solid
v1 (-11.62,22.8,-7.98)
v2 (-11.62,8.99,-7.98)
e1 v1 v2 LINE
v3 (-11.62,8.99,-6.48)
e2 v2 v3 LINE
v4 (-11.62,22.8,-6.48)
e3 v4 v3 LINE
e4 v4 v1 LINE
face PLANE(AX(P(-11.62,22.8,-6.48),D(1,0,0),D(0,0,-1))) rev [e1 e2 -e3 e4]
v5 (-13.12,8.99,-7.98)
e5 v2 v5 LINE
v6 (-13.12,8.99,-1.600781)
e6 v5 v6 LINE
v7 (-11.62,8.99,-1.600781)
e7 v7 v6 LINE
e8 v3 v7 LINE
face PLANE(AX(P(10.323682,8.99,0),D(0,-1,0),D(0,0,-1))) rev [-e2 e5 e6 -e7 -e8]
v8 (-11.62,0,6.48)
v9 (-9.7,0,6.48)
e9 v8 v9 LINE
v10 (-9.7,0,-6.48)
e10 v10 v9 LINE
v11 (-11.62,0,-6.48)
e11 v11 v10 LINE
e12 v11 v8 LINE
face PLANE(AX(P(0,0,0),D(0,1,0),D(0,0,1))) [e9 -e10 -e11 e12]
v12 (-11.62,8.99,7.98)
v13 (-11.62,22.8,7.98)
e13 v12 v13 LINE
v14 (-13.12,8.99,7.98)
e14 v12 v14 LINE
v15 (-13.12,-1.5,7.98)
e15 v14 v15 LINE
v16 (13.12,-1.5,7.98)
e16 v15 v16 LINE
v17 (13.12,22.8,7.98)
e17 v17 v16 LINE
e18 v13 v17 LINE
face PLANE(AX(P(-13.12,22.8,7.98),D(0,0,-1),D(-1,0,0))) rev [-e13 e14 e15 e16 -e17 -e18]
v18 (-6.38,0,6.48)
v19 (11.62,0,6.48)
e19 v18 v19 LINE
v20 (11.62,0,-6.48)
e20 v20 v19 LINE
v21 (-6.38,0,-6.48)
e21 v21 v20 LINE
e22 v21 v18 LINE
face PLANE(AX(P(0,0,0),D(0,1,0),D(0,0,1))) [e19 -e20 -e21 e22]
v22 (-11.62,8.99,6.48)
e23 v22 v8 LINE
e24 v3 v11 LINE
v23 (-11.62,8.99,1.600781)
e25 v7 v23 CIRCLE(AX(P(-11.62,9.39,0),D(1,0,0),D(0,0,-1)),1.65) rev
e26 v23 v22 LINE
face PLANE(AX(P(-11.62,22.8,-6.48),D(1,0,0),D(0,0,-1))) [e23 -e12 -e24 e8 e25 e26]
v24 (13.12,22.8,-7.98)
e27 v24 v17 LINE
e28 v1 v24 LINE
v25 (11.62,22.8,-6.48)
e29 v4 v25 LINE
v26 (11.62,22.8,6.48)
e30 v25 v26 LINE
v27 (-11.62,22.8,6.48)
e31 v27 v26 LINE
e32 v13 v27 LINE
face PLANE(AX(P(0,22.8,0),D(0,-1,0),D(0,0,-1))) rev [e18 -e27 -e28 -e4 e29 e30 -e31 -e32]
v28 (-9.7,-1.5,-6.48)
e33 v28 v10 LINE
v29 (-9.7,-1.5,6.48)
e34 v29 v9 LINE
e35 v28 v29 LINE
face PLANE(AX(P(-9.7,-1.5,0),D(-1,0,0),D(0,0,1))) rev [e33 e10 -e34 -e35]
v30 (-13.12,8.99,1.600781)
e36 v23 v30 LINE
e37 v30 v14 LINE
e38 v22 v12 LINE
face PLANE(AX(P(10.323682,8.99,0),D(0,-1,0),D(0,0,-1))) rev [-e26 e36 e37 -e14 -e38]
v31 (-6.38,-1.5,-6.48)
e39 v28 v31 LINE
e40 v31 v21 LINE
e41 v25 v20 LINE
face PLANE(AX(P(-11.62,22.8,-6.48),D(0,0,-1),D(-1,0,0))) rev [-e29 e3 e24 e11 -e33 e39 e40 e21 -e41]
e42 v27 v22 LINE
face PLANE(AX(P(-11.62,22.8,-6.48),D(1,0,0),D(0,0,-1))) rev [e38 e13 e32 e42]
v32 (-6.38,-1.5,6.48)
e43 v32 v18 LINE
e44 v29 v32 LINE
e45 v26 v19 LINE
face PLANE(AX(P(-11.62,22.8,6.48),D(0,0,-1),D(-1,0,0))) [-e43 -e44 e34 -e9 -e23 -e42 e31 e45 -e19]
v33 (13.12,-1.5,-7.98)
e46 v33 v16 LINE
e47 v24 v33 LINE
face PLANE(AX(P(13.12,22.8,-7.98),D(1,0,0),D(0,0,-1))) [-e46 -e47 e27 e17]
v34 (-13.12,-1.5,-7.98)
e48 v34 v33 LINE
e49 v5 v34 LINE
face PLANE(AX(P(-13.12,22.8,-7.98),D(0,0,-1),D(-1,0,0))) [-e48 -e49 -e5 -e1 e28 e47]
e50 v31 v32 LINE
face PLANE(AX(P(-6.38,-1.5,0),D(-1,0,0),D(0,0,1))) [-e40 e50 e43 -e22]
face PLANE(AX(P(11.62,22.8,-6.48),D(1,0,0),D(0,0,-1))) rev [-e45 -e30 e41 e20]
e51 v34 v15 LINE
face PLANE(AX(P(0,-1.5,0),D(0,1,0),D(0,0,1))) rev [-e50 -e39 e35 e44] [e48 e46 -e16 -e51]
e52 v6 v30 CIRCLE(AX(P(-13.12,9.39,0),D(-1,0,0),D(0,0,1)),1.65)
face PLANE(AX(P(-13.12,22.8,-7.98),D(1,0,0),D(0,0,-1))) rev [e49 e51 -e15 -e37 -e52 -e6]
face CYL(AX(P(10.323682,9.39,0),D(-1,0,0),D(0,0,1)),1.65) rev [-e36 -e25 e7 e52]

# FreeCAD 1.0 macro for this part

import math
import FreeCAD as App
import Part
import Sketcher
from FreeCAD import Vector


def add_polygon(sketch, points):
    """Adds a closed chain of lines whose ends are joined by coincident constraints."""
    first, n = sketch.GeometryCount, len(points)
    for a, b in zip(points, points[1:] + points[:1]):
        sketch.addGeometry(Part.LineSegment(App.Vector(*a, 0), App.Vector(*b, 0)), False)
    for i in range(n):
        sketch.addConstraint(Sketcher.Constraint("Coincident", first + i, 2, first + (i + 1) % n, 1))

doc = App.newDocument("Part")
body = doc.addObject("PartDesign::Body", "Body")

# Sketch on XZ plane
sketch1 = body.newObject("Sketcher::SketchObject", "Sketch")
sketch1.AttachmentSupport = (doc.getObject("XZ_Plane"), [""])
sketch1.MapMode = "FlatFace"
add_polygon(sketch1, [(-13, -8), (-13, 8), (13, 8), (13, -8)])  # lines 0-3
add_polygon(sketch1, [(12, 6), (-12, 6), (-12, -6), (12, -6)])  # lines 4-7
sketch1.addConstraint(Sketcher.Constraint("Vertical", 0))
sketch1.addConstraint(Sketcher.Constraint("Horizontal", 1))
sketch1.addConstraint(Sketcher.Constraint("Vertical", 2))
sketch1.addConstraint(Sketcher.Constraint("Horizontal", 3))
sketch1.addConstraint(Sketcher.Constraint("Horizontal", 4))
sketch1.addConstraint(Sketcher.Constraint("Vertical", 5))
sketch1.addConstraint(Sketcher.Constraint("Horizontal", 6))
sketch1.addConstraint(Sketcher.Constraint("Vertical", 7))
sketch1.addConstraint(Sketcher.Constraint("Symmetric", 0, 2, 2, 2, -1, 1))
sketch1.addConstraint(Sketcher.Constraint("Symmetric", 4, 2, 6, 2, -1, 1))
sketch1.addConstraint(Sketcher.Constraint("DistanceX", 1, 1, 1, 2, 26.24))
sketch1.addConstraint(Sketcher.Constraint("DistanceX", 4, 2, 4, 1, 23.24))
sketch1.addConstraint(Sketcher.Constraint("DistanceY", 0, 1, 0, 2, 15.96))
sketch1.addConstraint(Sketcher.Constraint("DistanceY", 5, 2, 5, 1, 12.96))
pad1 = body.newObject("PartDesign::Pad", "Pad")
pad1.Profile = sketch1
pad1.Length = 22.8
pad1.Reversed = True

# Sketch on XZ plane
sketch2 = body.newObject("Sketcher::SketchObject", "Sketch001")
sketch2.AttachmentSupport = (doc.getObject("XZ_Plane"), [""])
sketch2.MapMode = "FlatFace"
add_polygon(sketch2, [(-13.1, -8), (-13.1, 8), (13.1, 8), (13.1, -8)])  # lines 0-3
add_polygon(sketch2, [(-6.4, 6.5), (-9.7, 6.5), (-9.7, -6.5), (-6.4, -6.5)])  # lines 4-7
sketch2.addConstraint(Sketcher.Constraint("Vertical", 0))
sketch2.addConstraint(Sketcher.Constraint("Horizontal", 1))
sketch2.addConstraint(Sketcher.Constraint("Vertical", 2))
sketch2.addConstraint(Sketcher.Constraint("Horizontal", 3))
sketch2.addConstraint(Sketcher.Constraint("Horizontal", 4))
sketch2.addConstraint(Sketcher.Constraint("Vertical", 5))
sketch2.addConstraint(Sketcher.Constraint("Horizontal", 6))
sketch2.addConstraint(Sketcher.Constraint("Vertical", 7))
sketch2.addConstraint(Sketcher.Constraint("Symmetric", 0, 2, 2, 2, -1, 1))
sketch2.addConstraint(Sketcher.Constraint("DistanceX", 1, 1, 1, 2, 26.24))
sketch2.addConstraint(Sketcher.Constraint("DistanceX", 4, 2, 4, 1, 3.32))
sketch2.addConstraint(Sketcher.Constraint("DistanceY", 0, 1, 0, 2, 15.96))
sketch2.addConstraint(Sketcher.Constraint("DistanceY", 5, 2, 5, 1, 12.96))
sketch2.addConstraint(Sketcher.Constraint("DistanceX", 4, 2, -1, 1, 9.7))
sketch2.addConstraint(Sketcher.Constraint("DistanceY", 4, 2, 0, 2, 1.5))
pad2 = body.newObject("PartDesign::Pad", "Pad001")
pad2.Profile = sketch2
pad2.Length = 1.5

# Sketch on YZ plane
sketch3 = body.newObject("Sketcher::SketchObject", "Sketch002")
sketch3.AttachmentSupport = (doc.getObject("YZ_Plane"), [""])
sketch3.MapMode = "FlatFace"
sketch3.AttachmentOffset = App.Placement(Vector(0, 0, -13.12), App.Rotation())
sketch3.addGeometry(Part.ArcOfCircle(Part.Circle(Vector(9.4, 0, 0), Vector(0, 0, 1), 1.6), math.radians(180), math.radians(256)), False)
sketch3.addGeometry(Part.ArcOfCircle(Part.Circle(Vector(9.4, 0, 0), Vector(0, 0, 1), 1.6), math.radians(104), math.radians(180)), False)
sketch3.addGeometry(Part.LineSegment(Vector(9, 1.6, 0), Vector(9, 8, 0)), False)
sketch3.addGeometry(Part.LineSegment(Vector(9, 8, 0), Vector(22.8, 8, 0)), False)
sketch3.addGeometry(Part.LineSegment(Vector(22.8, 8, 0), Vector(22.8, -8, 0)), False)
sketch3.addGeometry(Part.LineSegment(Vector(22.8, -8, 0), Vector(9, -8, 0)), False)
sketch3.addGeometry(Part.LineSegment(Vector(9, -8, 0), Vector(9, -1.6, 0)), False)
sketch3.addConstraint(Sketcher.Constraint("Tangent", 0, 1, 1, 2))
sketch3.addConstraint(Sketcher.Constraint("Coincident", 1, 1, 2, 1))
sketch3.addConstraint(Sketcher.Constraint("Coincident", 2, 2, 3, 1))
sketch3.addConstraint(Sketcher.Constraint("Coincident", 3, 2, 4, 1))
sketch3.addConstraint(Sketcher.Constraint("Coincident", 4, 2, 5, 1))
sketch3.addConstraint(Sketcher.Constraint("Coincident", 5, 2, 6, 1))
sketch3.addConstraint(Sketcher.Constraint("Coincident", 6, 2, 0, 2))
sketch3.addConstraint(Sketcher.Constraint("Vertical", 2))
sketch3.addConstraint(Sketcher.Constraint("Horizontal", 3))
sketch3.addConstraint(Sketcher.Constraint("Vertical", 4))
sketch3.addConstraint(Sketcher.Constraint("Horizontal", 5))
sketch3.addConstraint(Sketcher.Constraint("Vertical", 6))
sketch3.addConstraint(Sketcher.Constraint("Equal", 0, 1))
sketch3.addConstraint(Sketcher.Constraint("Symmetric", 2, 2, 5, 2, -1))
sketch3.addConstraint(Sketcher.Constraint("PointOnObject", 0, 3, -1))
sketch3.addConstraint(Sketcher.Constraint("PointOnObject", 0, 1, -1))
sketch3.addConstraint(Sketcher.Constraint("Radius", 0, 1.65))
sketch3.addConstraint(Sketcher.Constraint("DistanceX", 3, 1, 3, 2, 13.81))
sketch3.addConstraint(Sketcher.Constraint("DistanceY", 4, 2, 4, 1, 15.96))
sketch3.addConstraint(Sketcher.Constraint("DistanceX", -1, 1, 3, 2, 22.8))
sketch3.addConstraint(Sketcher.Constraint("DistanceX", 1, 1, 0, 3, 0.4))
pocket1 = body.newObject("PartDesign::Pocket", "Pocket")
pocket1.Profile = sketch3
pocket1.Length = 1.5
pocket1.Reversed = True

doc.recompute()
